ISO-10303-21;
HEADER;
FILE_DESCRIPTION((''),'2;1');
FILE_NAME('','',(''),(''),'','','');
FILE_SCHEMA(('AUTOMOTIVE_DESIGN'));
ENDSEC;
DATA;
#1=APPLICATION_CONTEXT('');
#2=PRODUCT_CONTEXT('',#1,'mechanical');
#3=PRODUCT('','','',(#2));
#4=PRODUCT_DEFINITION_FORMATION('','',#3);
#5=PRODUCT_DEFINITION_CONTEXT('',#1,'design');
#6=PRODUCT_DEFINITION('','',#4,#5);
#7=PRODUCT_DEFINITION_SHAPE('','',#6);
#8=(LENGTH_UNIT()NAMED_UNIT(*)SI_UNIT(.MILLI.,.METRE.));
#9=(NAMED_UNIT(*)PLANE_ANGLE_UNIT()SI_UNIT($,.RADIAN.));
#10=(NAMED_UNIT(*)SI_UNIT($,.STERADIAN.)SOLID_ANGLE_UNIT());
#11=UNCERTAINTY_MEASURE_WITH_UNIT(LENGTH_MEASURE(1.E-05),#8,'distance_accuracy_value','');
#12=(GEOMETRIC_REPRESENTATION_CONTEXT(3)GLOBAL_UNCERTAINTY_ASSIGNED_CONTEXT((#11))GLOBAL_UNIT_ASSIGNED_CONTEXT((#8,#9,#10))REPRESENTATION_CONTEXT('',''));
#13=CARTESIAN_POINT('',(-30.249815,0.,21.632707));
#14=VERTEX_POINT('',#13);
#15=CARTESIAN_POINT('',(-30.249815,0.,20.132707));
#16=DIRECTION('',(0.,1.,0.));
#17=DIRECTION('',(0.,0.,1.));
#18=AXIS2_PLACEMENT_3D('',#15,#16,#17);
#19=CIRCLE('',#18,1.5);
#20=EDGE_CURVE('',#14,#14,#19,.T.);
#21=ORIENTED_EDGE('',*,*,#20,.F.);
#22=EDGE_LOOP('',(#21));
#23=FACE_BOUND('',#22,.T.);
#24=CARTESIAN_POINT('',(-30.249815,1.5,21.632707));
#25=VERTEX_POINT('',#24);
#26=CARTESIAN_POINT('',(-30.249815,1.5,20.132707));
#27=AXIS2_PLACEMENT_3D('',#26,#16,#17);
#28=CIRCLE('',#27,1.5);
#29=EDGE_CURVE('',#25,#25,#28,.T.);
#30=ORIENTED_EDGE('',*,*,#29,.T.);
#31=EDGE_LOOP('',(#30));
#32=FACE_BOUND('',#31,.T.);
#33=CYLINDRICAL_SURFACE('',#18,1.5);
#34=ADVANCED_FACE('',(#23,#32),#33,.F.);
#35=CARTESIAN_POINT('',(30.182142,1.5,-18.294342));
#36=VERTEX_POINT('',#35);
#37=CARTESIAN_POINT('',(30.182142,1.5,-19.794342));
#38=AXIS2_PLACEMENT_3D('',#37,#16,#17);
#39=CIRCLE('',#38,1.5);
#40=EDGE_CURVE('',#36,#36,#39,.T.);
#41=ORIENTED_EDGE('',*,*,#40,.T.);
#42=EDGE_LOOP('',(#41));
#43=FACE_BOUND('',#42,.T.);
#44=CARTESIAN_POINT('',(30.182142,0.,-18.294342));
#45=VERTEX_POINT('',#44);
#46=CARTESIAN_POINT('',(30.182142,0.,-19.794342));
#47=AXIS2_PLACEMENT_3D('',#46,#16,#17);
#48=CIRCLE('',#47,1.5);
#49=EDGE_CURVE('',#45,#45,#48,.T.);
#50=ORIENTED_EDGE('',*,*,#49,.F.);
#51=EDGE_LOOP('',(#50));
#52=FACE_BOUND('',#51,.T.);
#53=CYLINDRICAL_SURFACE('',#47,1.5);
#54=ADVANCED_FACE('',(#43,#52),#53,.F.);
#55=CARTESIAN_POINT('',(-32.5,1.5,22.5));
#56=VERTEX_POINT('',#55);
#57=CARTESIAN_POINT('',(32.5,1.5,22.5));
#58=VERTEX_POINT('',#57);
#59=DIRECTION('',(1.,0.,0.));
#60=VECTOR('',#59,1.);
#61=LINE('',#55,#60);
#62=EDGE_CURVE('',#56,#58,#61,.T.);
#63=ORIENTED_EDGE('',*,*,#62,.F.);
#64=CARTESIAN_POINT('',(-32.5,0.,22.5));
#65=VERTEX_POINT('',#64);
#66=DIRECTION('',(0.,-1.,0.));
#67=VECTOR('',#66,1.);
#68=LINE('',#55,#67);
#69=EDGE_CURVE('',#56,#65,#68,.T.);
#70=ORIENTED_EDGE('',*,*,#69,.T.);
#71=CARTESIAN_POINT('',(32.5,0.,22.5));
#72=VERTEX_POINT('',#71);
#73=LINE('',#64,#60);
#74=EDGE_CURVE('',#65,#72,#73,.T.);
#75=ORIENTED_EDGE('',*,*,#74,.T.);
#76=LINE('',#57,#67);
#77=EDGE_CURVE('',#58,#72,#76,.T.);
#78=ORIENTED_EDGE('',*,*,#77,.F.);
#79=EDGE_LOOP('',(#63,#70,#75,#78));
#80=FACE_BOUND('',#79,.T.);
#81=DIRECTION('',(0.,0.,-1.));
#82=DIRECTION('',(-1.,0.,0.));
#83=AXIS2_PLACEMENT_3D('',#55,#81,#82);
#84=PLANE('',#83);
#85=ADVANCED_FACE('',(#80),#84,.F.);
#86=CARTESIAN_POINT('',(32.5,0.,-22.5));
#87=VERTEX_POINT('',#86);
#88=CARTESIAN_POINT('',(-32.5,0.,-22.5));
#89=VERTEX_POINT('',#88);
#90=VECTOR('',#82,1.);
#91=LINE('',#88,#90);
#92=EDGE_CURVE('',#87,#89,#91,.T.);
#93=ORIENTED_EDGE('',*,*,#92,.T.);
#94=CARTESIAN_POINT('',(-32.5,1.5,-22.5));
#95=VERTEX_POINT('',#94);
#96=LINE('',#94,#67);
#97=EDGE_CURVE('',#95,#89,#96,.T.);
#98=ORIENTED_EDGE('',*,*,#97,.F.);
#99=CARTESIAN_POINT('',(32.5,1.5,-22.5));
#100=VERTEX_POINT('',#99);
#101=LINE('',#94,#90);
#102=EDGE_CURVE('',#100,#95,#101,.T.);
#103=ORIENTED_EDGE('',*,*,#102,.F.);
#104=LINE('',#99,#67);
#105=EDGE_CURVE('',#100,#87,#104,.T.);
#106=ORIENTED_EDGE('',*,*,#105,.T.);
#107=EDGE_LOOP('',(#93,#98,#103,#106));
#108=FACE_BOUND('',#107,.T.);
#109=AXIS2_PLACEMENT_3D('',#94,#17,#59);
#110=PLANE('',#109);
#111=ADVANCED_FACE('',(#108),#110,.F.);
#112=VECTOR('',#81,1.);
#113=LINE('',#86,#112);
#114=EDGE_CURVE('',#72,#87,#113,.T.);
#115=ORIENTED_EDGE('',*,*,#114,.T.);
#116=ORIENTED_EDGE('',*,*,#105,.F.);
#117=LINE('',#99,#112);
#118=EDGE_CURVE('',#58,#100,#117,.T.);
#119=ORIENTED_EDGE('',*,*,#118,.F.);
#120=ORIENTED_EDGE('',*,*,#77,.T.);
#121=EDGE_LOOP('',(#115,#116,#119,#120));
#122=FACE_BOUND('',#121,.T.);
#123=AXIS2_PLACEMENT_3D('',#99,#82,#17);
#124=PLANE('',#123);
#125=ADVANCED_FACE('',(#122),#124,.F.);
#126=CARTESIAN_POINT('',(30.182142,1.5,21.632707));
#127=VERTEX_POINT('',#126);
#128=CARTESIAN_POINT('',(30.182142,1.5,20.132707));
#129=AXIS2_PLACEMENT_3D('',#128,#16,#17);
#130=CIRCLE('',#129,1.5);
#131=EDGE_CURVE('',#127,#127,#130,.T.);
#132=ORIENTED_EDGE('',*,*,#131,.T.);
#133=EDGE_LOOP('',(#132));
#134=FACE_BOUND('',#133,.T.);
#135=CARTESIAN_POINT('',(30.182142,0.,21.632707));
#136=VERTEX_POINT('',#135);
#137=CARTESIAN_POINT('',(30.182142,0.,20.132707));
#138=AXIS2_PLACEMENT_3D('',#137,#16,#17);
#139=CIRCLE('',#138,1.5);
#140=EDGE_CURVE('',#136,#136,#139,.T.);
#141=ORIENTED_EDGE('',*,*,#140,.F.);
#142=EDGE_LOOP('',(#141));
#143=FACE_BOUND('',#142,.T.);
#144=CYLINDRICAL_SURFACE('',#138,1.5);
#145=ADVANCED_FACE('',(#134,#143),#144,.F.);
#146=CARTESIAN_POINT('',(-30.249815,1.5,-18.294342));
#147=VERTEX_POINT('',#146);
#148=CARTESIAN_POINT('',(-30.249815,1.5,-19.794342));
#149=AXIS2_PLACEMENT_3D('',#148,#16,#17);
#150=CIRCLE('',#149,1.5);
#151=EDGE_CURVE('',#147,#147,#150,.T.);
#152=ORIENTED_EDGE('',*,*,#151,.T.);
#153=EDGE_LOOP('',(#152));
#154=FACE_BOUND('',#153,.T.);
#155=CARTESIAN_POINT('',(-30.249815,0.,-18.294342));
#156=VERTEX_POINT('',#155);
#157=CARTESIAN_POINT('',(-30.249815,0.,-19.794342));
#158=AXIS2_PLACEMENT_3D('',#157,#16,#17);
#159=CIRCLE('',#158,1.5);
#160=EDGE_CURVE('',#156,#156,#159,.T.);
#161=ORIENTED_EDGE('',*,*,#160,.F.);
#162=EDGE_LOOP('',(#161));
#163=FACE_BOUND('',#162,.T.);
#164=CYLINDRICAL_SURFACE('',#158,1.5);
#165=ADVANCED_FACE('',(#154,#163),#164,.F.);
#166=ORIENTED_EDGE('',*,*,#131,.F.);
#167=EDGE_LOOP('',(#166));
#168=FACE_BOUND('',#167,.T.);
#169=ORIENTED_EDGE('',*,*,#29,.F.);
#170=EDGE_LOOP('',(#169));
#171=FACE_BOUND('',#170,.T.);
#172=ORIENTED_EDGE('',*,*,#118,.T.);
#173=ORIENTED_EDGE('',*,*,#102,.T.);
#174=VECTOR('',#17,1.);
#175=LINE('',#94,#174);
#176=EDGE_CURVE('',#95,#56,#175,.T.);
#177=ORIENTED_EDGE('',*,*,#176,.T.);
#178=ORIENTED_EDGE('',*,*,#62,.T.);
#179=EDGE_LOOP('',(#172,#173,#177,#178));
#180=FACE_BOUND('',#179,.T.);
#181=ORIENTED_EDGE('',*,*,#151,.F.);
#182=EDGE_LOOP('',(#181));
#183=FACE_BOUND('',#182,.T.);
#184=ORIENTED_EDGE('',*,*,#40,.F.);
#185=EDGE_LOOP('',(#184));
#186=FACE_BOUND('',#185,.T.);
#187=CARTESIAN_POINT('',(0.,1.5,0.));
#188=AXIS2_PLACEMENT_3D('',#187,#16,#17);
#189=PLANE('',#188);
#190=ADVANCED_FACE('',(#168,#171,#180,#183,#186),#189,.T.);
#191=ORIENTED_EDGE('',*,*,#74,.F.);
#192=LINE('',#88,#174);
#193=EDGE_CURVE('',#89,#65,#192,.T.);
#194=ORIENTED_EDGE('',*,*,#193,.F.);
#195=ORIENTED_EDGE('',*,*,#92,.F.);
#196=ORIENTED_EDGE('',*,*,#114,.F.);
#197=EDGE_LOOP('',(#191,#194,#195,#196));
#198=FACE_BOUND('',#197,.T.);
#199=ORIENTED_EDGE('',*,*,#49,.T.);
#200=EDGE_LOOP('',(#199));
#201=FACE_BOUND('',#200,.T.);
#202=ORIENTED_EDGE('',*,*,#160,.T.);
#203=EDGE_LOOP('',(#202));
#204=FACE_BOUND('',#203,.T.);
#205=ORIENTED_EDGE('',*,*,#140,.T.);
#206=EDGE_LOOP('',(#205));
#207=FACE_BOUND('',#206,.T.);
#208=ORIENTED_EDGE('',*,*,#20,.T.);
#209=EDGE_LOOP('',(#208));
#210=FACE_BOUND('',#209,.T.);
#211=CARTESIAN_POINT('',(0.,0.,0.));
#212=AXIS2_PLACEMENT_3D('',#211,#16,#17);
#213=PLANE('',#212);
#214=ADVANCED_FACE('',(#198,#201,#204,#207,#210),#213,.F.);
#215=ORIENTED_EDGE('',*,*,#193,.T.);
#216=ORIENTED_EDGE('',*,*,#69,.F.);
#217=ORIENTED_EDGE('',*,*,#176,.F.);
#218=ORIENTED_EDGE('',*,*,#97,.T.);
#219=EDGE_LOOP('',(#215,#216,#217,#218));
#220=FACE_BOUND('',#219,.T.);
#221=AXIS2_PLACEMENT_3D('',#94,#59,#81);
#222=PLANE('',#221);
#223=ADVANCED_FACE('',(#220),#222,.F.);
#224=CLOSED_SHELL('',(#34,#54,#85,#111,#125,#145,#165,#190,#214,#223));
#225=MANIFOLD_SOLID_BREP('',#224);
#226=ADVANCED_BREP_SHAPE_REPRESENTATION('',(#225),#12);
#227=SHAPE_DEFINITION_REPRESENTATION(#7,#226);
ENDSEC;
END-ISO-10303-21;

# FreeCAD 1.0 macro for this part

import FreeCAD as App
import Part
import Sketcher
Q = App.Units.Quantity


def add_polygon(sketch, points):
    """Adds a closed chain of lines whose ends are joined by coincident constraints."""
    first, n = sketch.GeometryCount, len(points)
    for a, b in zip(points, points[1:] + points[:1]):
        sketch.addGeometry(Part.LineSegment(App.Vector(*a, 0), App.Vector(*b, 0)), False)
    for i in range(n):
        sketch.addConstraint(Sketcher.Constraint("Coincident", first + i, 2, first + (i + 1) % n, 1))

doc = App.newDocument("Part")
body = doc.addObject("PartDesign::Body", "Body")

# Sketch on XZ plane
sketch1 = body.newObject("Sketcher::SketchObject", "Sketch")
sketch1.AttachmentSupport = (doc.getObject("XZ_Plane"), [""])
sketch1.MapMode = "FlatFace"
add_polygon(sketch1, [(-32, -22), (-32, 22), (32, 22), (32, -22)])  # lines 0-3
sketch1.addConstraint([
    Sketcher.Constraint("Vertical", 0),
    Sketcher.Constraint("Horizontal", 1),
    Sketcher.Constraint("Vertical", 2),
    Sketcher.Constraint("Horizontal", 3),
    Sketcher.Constraint("Symmetric", 0, 2, 2, 2, -1, 1),
    Sketcher.Constraint("DistanceX", 1, 1, 1, 2, Q("65 mm")),
    Sketcher.Constraint("DistanceY", 0, 1, 0, 2, Q("45 mm")),
])
pad1 = body.newObject("PartDesign::Pad", "Pad")
pad1.Profile = sketch1
pad1.Length = 1.5
pad1.Reversed = True

# Sketch on XZ plane
sketch2 = body.newObject("Sketcher::SketchObject", "Sketch001")
sketch2.AttachmentSupport = (doc.getObject("XZ_Plane"), [""])
sketch2.MapMode = "FlatFace"
sketch2.AttachmentOffset = App.Placement(App.Vector(0, 0, -1.5), App.Rotation())
sketch2.addGeometry([
    Part.Circle(App.Vector(-30.2, -19.8, 0), App.Vector(0, 0, 1), 1.5),
    Part.Circle(App.Vector(30.2, -19.8, 0), App.Vector(0, 0, 1), 1.5),
    Part.Circle(App.Vector(30.2, 20.1, 0), App.Vector(0, 0, 1), 1.5),
    Part.Circle(App.Vector(-30.2, 20.1, 0), App.Vector(0, 0, 1), 1.5),
], False)
sketch2.addConstraint([
    Sketcher.Constraint("Equal", 0, 1),
    Sketcher.Constraint("Equal", 1, 2),
    Sketcher.Constraint("Equal", 2, 3),
    Sketcher.Constraint("Horizontal", 0, 3, 1, 3),
    Sketcher.Constraint("Horizontal", 2, 3, 3, 3),
    Sketcher.Constraint("Vertical", 1, 3, 2, 3),
    Sketcher.Constraint("Vertical", 0, 3, 3, 3),
    Sketcher.Constraint("Diameter", 0, Q("3 mm")),
    Sketcher.Constraint("DistanceY", 0, 3, -1, 1, Q("19.794342 mm")),
    Sketcher.Constraint("DistanceX", -1, 1, 1, 3, Q("30.182142 mm")),
    Sketcher.Constraint("DistanceY", 1, 3, 2, 3, Q("39.927049 mm")),
    Sketcher.Constraint("DistanceX", 0, 3, -1, 1, Q("30.249815 mm")),
])
pocket1 = body.newObject("PartDesign::Pocket", "Pocket")
pocket1.Profile = sketch2
pocket1.Type = "ThroughAll"
pocket1.Reversed = True

doc.recompute()
